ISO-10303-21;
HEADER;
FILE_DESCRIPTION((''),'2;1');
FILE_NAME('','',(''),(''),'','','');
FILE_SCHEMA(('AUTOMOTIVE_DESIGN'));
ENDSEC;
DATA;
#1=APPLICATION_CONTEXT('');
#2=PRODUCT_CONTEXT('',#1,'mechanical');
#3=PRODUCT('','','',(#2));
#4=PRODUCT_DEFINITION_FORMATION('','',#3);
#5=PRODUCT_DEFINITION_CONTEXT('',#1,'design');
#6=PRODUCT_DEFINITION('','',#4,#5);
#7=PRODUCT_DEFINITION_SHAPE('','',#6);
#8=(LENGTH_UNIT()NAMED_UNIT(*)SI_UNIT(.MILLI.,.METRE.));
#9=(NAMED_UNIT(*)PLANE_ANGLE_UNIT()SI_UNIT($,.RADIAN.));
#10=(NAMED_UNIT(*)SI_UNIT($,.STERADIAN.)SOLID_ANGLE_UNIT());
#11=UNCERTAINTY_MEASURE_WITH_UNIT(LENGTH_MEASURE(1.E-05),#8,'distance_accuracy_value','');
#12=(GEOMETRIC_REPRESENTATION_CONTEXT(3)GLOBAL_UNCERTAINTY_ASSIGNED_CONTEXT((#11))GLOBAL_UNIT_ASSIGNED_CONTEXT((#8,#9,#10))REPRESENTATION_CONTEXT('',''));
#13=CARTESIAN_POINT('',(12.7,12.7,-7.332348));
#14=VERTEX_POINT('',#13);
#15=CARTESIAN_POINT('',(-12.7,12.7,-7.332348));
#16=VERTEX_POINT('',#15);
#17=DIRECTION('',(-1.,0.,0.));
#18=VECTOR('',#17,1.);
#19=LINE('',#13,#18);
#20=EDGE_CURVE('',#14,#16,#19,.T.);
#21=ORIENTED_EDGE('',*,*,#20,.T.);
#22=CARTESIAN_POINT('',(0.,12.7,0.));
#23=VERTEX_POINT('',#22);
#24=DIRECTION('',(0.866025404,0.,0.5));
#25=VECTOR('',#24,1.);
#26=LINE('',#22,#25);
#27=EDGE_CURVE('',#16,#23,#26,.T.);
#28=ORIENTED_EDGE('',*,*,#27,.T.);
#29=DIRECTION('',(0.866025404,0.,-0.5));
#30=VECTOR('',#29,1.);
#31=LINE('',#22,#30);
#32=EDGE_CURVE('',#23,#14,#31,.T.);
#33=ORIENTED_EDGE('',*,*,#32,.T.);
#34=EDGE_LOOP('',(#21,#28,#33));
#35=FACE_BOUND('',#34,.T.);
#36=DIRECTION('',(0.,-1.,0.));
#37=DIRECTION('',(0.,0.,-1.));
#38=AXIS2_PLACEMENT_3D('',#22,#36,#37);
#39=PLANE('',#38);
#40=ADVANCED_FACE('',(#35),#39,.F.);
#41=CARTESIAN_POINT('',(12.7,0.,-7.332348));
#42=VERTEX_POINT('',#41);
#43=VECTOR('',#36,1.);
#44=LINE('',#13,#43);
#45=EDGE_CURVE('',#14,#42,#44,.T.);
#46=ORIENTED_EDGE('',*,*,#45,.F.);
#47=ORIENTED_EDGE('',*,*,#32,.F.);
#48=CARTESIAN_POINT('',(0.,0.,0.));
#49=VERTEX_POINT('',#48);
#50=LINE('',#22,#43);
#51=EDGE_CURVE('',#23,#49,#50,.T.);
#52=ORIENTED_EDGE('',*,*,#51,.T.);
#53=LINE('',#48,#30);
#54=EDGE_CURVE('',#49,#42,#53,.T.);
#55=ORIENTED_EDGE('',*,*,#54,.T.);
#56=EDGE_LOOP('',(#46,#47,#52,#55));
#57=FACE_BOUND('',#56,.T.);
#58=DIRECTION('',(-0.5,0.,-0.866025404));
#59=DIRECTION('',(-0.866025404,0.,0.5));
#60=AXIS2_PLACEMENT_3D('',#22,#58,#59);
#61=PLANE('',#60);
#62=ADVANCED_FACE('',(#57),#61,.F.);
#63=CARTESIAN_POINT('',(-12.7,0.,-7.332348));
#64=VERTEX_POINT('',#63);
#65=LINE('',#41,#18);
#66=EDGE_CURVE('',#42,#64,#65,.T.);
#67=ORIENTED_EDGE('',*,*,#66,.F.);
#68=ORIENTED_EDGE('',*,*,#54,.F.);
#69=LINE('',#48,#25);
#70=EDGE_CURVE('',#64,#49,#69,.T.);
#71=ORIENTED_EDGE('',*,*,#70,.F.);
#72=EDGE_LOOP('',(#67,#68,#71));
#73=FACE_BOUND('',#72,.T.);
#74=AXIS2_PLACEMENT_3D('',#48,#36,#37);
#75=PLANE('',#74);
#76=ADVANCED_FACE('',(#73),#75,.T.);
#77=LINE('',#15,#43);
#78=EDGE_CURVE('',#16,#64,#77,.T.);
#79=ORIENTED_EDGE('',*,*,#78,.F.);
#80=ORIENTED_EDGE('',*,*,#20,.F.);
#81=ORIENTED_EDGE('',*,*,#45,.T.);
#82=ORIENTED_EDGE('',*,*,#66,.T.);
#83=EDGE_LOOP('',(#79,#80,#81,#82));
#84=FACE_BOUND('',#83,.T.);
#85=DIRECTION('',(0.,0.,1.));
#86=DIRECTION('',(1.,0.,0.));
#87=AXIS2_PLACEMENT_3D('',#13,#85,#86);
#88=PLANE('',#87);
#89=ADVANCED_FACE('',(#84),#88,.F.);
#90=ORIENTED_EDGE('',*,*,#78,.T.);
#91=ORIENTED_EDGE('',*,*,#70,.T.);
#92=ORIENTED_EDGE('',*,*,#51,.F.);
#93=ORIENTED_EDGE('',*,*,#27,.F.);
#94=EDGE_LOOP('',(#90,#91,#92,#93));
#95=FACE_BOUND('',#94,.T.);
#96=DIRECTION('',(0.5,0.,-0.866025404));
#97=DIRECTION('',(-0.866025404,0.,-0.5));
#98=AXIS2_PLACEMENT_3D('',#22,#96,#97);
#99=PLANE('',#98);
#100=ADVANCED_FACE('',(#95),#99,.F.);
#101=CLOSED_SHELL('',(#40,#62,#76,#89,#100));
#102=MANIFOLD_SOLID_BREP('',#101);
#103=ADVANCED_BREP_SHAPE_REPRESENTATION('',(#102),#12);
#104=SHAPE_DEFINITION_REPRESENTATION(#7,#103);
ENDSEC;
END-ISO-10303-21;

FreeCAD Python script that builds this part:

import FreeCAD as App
import Part
import Sketcher
from FreeCAD import Vector
Q = App.Units.Quantity

doc = App.newDocument("Part")
body = doc.addObject("PartDesign::Body", "Body")

# Sketch on XZ plane
sketch1 = body.newObject("Sketcher::SketchObject", "Sketch")
sketch1.AttachmentSupport = (doc.getObject("XZ_Plane"), [""])
sketch1.MapMode = "FlatFace"
sketch1.addGeometry(Part.LineSegment(Vector(0, 0, 0), Vector(13, -7, 0)), False)
sketch1.addGeometry(Part.LineSegment(Vector(13, -7, 0), Vector(-13, -7, 0)), False)
sketch1.addGeometry(Part.LineSegment(Vector(-13, -7, 0), Vector(0, 0, 0)), False)
sketch1.addConstraint(Sketcher.Constraint("Coincident", 0, 2, 1, 1))
sketch1.addConstraint(Sketcher.Constraint("Coincident", 1, 2, 2, 1))
sketch1.addConstraint(Sketcher.Constraint("Coincident", 2, 2, 0, 1))
sketch1.addConstraint(Sketcher.Constraint("Horizontal", 1))
sketch1.addConstraint(Sketcher.Constraint("Coincident", 2, 2, -1, 1))
sketch1.addConstraint(Sketcher.Constraint("Equal", 0, 2))
sketch1.addConstraint(Sketcher.Constraint("DistanceX", 1, 2, 1, 1, Q("1 in")))
sketch1.addConstraint(Sketcher.Constraint("Angle", 0, Q("-30 deg")))
pad1 = body.newObject("PartDesign::Pad", "Pad")
pad1.Profile = sketch1
pad1.Length = Q("0.5 in")
pad1.Reversed = True

doc.recompute()
